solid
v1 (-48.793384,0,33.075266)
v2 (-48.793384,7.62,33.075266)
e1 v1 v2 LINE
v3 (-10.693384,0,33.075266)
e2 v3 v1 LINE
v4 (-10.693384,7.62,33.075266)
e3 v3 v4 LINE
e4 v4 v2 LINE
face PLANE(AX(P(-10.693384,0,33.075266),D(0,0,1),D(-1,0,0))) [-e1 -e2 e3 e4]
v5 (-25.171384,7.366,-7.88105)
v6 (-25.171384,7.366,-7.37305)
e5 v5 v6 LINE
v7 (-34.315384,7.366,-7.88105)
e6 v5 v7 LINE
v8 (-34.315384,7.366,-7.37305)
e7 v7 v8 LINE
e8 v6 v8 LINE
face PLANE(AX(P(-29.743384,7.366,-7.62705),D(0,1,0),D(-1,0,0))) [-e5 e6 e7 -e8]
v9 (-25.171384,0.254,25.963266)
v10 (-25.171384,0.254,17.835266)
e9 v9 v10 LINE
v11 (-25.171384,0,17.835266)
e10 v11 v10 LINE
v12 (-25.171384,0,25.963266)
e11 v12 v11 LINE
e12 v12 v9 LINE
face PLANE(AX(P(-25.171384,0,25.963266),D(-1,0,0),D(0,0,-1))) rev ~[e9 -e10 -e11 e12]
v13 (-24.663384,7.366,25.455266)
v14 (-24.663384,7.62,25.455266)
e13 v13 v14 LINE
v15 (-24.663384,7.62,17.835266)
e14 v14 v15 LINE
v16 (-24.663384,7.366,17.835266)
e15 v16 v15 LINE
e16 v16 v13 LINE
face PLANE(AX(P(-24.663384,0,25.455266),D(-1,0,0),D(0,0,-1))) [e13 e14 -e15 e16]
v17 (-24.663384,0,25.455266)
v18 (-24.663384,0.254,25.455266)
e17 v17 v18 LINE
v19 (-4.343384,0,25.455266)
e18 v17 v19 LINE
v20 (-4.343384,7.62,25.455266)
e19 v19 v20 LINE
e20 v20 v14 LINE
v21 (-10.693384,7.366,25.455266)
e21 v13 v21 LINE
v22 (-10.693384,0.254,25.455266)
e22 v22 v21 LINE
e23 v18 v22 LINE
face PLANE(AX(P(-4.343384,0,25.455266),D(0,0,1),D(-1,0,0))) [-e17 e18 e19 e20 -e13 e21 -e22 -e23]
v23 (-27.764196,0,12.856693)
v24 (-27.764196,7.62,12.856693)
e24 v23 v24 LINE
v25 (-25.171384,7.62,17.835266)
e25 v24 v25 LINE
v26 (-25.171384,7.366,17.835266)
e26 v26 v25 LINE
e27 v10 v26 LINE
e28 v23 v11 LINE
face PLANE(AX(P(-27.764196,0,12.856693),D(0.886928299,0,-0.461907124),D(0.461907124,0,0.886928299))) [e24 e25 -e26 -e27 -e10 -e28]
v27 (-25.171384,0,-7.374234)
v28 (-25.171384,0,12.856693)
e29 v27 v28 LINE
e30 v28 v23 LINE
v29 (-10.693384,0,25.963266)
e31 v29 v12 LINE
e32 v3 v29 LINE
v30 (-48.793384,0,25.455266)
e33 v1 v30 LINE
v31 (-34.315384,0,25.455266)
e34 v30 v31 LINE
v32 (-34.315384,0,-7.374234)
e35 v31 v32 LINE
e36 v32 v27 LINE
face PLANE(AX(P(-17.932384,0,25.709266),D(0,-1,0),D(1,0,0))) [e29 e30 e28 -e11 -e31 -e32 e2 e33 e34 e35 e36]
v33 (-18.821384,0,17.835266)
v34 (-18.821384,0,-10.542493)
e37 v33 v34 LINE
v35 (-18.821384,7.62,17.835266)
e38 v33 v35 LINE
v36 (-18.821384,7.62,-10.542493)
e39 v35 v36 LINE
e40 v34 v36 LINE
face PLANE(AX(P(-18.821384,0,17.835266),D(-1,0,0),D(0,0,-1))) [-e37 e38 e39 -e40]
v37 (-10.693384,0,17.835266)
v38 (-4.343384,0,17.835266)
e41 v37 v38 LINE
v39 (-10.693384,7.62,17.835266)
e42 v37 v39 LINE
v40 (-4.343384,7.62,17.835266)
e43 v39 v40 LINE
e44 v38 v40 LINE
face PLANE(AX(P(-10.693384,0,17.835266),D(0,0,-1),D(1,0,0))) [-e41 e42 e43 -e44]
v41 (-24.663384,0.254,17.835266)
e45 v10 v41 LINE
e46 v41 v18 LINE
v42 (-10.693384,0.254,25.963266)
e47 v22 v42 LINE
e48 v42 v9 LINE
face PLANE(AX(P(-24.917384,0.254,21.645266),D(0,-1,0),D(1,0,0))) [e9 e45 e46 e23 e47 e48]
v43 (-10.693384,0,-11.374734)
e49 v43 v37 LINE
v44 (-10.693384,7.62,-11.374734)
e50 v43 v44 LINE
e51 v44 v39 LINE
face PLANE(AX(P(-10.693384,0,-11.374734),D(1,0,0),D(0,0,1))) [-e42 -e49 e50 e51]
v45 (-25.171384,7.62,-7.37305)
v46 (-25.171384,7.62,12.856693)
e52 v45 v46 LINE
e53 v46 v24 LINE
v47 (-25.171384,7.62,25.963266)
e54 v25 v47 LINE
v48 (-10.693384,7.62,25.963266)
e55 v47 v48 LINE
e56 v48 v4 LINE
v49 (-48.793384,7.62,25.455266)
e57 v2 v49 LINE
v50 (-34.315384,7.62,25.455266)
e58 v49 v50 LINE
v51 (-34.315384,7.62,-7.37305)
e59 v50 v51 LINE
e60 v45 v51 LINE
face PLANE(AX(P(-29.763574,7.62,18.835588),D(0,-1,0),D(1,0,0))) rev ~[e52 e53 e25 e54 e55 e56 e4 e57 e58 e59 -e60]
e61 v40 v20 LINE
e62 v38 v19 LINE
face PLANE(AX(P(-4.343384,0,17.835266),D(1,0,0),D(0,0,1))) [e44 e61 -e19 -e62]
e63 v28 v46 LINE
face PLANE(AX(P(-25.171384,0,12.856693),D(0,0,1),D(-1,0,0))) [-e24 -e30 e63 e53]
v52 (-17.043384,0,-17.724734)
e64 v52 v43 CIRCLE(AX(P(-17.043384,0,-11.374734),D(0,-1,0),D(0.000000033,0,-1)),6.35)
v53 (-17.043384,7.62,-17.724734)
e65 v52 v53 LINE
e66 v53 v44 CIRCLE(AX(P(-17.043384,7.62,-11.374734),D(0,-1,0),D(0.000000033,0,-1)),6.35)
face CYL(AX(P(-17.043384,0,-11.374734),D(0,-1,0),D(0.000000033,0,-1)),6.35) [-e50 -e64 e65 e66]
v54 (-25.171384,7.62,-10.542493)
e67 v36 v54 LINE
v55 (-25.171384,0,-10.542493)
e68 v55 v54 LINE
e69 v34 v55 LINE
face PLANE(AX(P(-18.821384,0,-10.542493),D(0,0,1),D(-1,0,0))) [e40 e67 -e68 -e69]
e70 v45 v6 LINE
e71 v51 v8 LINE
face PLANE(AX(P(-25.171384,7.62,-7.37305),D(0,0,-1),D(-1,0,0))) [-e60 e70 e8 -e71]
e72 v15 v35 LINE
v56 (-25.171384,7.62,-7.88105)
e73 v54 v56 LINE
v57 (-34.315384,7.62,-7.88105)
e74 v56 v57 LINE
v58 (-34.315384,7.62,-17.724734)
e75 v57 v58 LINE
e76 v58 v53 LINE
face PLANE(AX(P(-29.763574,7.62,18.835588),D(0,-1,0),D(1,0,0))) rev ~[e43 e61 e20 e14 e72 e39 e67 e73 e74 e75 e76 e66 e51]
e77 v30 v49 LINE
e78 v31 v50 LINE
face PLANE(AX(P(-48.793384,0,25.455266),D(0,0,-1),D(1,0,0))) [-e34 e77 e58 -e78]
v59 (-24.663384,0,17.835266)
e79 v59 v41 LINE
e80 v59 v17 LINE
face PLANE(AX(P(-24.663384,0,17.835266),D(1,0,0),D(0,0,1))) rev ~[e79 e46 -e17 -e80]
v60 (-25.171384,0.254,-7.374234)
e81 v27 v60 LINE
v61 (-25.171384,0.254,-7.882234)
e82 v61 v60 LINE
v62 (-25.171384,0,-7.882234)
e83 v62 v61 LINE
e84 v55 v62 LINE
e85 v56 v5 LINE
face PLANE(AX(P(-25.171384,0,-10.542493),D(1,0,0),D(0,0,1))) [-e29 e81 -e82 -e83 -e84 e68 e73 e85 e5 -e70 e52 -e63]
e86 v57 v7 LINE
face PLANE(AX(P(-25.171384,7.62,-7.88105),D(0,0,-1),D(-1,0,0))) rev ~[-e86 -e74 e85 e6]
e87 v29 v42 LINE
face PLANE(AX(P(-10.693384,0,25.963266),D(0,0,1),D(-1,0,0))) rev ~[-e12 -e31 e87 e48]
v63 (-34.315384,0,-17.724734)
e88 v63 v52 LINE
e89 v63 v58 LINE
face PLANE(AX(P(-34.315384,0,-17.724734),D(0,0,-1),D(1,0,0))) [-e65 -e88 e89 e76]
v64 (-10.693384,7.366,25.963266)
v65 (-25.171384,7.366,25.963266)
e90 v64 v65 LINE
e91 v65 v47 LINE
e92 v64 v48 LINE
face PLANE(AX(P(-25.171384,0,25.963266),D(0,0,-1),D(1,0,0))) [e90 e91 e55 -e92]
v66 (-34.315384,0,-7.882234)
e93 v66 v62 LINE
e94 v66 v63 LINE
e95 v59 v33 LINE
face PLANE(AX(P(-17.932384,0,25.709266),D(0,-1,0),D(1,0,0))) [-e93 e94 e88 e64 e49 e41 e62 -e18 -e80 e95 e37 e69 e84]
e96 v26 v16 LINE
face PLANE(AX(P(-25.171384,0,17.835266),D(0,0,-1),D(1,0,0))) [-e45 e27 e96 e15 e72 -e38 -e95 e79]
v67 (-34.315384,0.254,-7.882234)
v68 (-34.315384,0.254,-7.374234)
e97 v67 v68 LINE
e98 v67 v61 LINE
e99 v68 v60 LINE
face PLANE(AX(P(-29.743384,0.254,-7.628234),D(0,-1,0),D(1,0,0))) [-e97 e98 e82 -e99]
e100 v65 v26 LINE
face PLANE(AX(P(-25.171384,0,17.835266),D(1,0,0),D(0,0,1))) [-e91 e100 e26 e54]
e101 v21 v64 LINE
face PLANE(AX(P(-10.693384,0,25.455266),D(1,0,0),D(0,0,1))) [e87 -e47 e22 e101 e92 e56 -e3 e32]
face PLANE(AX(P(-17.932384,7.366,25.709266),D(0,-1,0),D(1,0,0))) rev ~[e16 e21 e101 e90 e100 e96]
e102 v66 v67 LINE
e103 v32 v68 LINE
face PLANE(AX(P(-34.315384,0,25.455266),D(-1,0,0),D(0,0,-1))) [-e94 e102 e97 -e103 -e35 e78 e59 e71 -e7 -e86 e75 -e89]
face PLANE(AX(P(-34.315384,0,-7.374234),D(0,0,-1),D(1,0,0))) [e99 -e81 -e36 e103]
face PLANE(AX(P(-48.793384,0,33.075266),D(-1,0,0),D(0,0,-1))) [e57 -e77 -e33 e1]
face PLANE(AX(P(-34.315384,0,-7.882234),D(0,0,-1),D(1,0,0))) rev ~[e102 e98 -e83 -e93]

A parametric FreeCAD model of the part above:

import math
import FreeCAD as App
import Part
import Sketcher
from FreeCAD import Vector
Q = App.Units.Quantity


def add_polygon(sketch, points):
    """Adds a closed chain of lines whose ends are joined by coincident constraints."""
    first, n = sketch.GeometryCount, len(points)
    for a, b in zip(points, points[1:] + points[:1]):
        sketch.addGeometry(Part.LineSegment(App.Vector(*a, 0), App.Vector(*b, 0)), False)
    for i in range(n):
        sketch.addConstraint(Sketcher.Constraint("Coincident", first + i, 2, first + (i + 1) % n, 1))

doc = App.newDocument("Part")
body = doc.addObject("PartDesign::Body", "Body")

sketch1 = body.newObject("Sketcher::SketchObject", "Sketch")
sketch1.AttachmentSupport = (doc.getObject("XZ_Plane"), [""])
sketch1.MapMode = "FlatFace"
sketch1.addGeometry(Part.LineSegment(Vector(-10.7, 33.1, 0), Vector(-48.8, 33.1, 0)), False)
sketch1.addGeometry(Part.LineSegment(Vector(-48.8, 33.1, 0), Vector(-48.8, 25.5, 0)), False)
sketch1.addGeometry(Part.LineSegment(Vector(-48.8, 25.5, 0), Vector(-34.3, 25.5, 0)), False)
sketch1.addGeometry(Part.LineSegment(Vector(-34.3, 25.5, 0), Vector(-34.3, -17.7, 0)), False)
sketch1.addGeometry(Part.LineSegment(Vector(-34.3, -17.7, 0), Vector(-17, -17.7, 0)), False)
sketch1.addGeometry(Part.ArcOfCircle(Part.Circle(Vector(-17, -11.4, 0), Vector(0, 0, 1), 6.4), math.radians(-90), math.radians(0)), False)
sketch1.addGeometry(Part.LineSegment(Vector(-10.7, -11.4, 0), Vector(-10.7, 17.8, 0)), False)
sketch1.addGeometry(Part.LineSegment(Vector(-10.7, 17.8, 0), Vector(-4.3, 17.8, 0)), False)
sketch1.addGeometry(Part.LineSegment(Vector(-4.3, 17.8, 0), Vector(-4.3, 25.5, 0)), False)
sketch1.addGeometry(Part.LineSegment(Vector(-4.3, 25.5, 0), Vector(-24.7, 25.5, 0)), False)
sketch1.addGeometry(Part.LineSegment(Vector(-24.7, 25.5, 0), Vector(-24.7, 17.8, 0)), False)
sketch1.addGeometry(Part.LineSegment(Vector(-24.7, 17.8, 0), Vector(-18.8, 17.8, 0)), False)
sketch1.addGeometry(Part.LineSegment(Vector(-18.8, 17.8, 0), Vector(-18.8, -10.5, 0)), False)
sketch1.addGeometry(Part.LineSegment(Vector(-18.8, -10.5, 0), Vector(-25.2, -10.5, 0)), False)
sketch1.addGeometry(Part.LineSegment(Vector(-25.2, -10.5, 0), Vector(-25.2, 12.9, 0)), False)
sketch1.addGeometry(Part.LineSegment(Vector(-25.2, 12.9, 0), Vector(-27.8, 12.9, 0)), False)
sketch1.addGeometry(Part.LineSegment(Vector(-27.8, 12.9, 0), Vector(-25.2, 17.8, 0)), False)
sketch1.addGeometry(Part.LineSegment(Vector(-25.2, 17.8, 0), Vector(-25.2, 26, 0)), False)
sketch1.addGeometry(Part.LineSegment(Vector(-25.2, 26, 0), Vector(-10.7, 26, 0)), False)
sketch1.addGeometry(Part.LineSegment(Vector(-10.7, 26, 0), Vector(-10.7, 33.1, 0)), False)
sketch1.addConstraint(Sketcher.Constraint("Coincident", 0, 2, 1, 1))
sketch1.addConstraint(Sketcher.Constraint("Coincident", 1, 2, 2, 1))
sketch1.addConstraint(Sketcher.Constraint("Coincident", 2, 2, 3, 1))
sketch1.addConstraint(Sketcher.Constraint("Coincident", 3, 2, 4, 1))
sketch1.addConstraint(Sketcher.Constraint("Tangent", 4, 2, 5, 1))
sketch1.addConstraint(Sketcher.Constraint("Tangent", 5, 2, 6, 1))
sketch1.addConstraint(Sketcher.Constraint("Coincident", 6, 2, 7, 1))
sketch1.addConstraint(Sketcher.Constraint("Coincident", 7, 2, 8, 1))
sketch1.addConstraint(Sketcher.Constraint("Coincident", 8, 2, 9, 1))
sketch1.addConstraint(Sketcher.Constraint("Coincident", 9, 2, 10, 1))
sketch1.addConstraint(Sketcher.Constraint("Coincident", 10, 2, 11, 1))
sketch1.addConstraint(Sketcher.Constraint("Coincident", 11, 2, 12, 1))
sketch1.addConstraint(Sketcher.Constraint("Coincident", 12, 2, 13, 1))
sketch1.addConstraint(Sketcher.Constraint("Coincident", 13, 2, 14, 1))
sketch1.addConstraint(Sketcher.Constraint("Coincident", 14, 2, 15, 1))
sketch1.addConstraint(Sketcher.Constraint("Coincident", 15, 2, 16, 1))
sketch1.addConstraint(Sketcher.Constraint("Coincident", 16, 2, 17, 1))
sketch1.addConstraint(Sketcher.Constraint("Coincident", 17, 2, 18, 1))
sketch1.addConstraint(Sketcher.Constraint("Coincident", 18, 2, 19, 1))
sketch1.addConstraint(Sketcher.Constraint("Coincident", 19, 2, 0, 1))
sketch1.addConstraint(Sketcher.Constraint("Horizontal", 0))
sketch1.addConstraint(Sketcher.Constraint("Vertical", 1))
sketch1.addConstraint(Sketcher.Constraint("Horizontal", 2))
sketch1.addConstraint(Sketcher.Constraint("Vertical", 3))
sketch1.addConstraint(Sketcher.Constraint("Horizontal", 4))
sketch1.addConstraint(Sketcher.Constraint("Vertical", 6))
sketch1.addConstraint(Sketcher.Constraint("Horizontal", 7))
sketch1.addConstraint(Sketcher.Constraint("Vertical", 8))
sketch1.addConstraint(Sketcher.Constraint("Horizontal", 9))
sketch1.addConstraint(Sketcher.Constraint("Vertical", 10))
sketch1.addConstraint(Sketcher.Constraint("Horizontal", 11))
sketch1.addConstraint(Sketcher.Constraint("Vertical", 12))
sketch1.addConstraint(Sketcher.Constraint("Horizontal", 13))
sketch1.addConstraint(Sketcher.Constraint("Vertical", 14))
sketch1.addConstraint(Sketcher.Constraint("Horizontal", 15))
sketch1.addConstraint(Sketcher.Constraint("Vertical", 17))
sketch1.addConstraint(Sketcher.Constraint("Horizontal", 18))
sketch1.addConstraint(Sketcher.Constraint("Vertical", 19))
sketch1.addConstraint(Sketcher.Constraint("Horizontal", 2, 2, 8, 2))
sketch1.addConstraint(Sketcher.Constraint("Horizontal", 7, 2, 10, 2))
sketch1.addConstraint(Sketcher.Constraint("Horizontal", 11, 2, 16, 2))
sketch1.addConstraint(Sketcher.Constraint("Vertical", 14, 2, 16, 2))
sketch1.addConstraint(Sketcher.Constraint("Vertical", 6, 2, 18, 2))
sketch1.addConstraint(Sketcher.Constraint("Equal", 7, 13))
sketch1.addConstraint(Sketcher.Constraint("Equal", 2, 18))
sketch1.addConstraint(Sketcher.Constraint("Equal", 1, 8))
sketch1.addConstraint(Sketcher.Constraint("Radius", 5, Q("0.25 in")))
sketch1.addConstraint(Sketcher.Constraint("DistanceX", 0, 2, 0, 1, Q("1.5 in")))
sketch1.addConstraint(Sketcher.Constraint("DistanceX", 9, 2, 9, 1, Q("0.8 in")))
sketch1.addConstraint(Sketcher.Constraint("DistanceY", 1, 2, 1, 1, Q("0.3 in")))
sketch1.addConstraint(Sketcher.Constraint("DistanceY", 3, 2, 3, 1, Q("1.7 in")))
sketch1.addConstraint(Sketcher.Constraint("DistanceX", 2, 1, 2, 2, Q("0.57 in")))
sketch1.addConstraint(Sketcher.Constraint("DistanceX", 7, 1, 7, 2, Q("0.25 in")))
sketch1.addConstraint(Sketcher.Constraint("DistanceY", 17, 1, 17, 2, Q("0.32 in")))
sketch1.addConstraint(Sketcher.Constraint("DistanceX", 15, 2, 15, 1, Q("2.592812 mm")))
sketch1.addConstraint(Sketcher.Constraint("DistanceY", 12, 2, 12, 1, Q("28.377759 mm")))
sketch1.addConstraint(Sketcher.Constraint("DistanceY", 14, 1, 14, 2, Q("23.399186 mm")))
sketch1.addConstraint(Sketcher.Constraint("DistanceX", 5, 3, -1, 1, Q("17.043384 mm")))
sketch1.addConstraint(Sketcher.Constraint("DistanceY", 5, 3, -1, 1, Q("11.374734 mm")))
pad1 = body.newObject("PartDesign::Pad", "Pad")
pad1.Profile = sketch1
pad1.Length = Q("0.3 in")
pad1.Reversed = True

sketch2 = body.newObject("Sketcher::SketchObject", "Sketch001")
sketch2.AttachmentSupport = (doc.getObject("XZ_Plane"), [""])
sketch2.MapMode = "FlatFace"
add_polygon(sketch2, [(-10.7, 25.5), (-10.7, 26), (-25.2, 26), (-25.2, 17.8), (-24.7, 17.8), (-24.7, 25.5)])
add_polygon(sketch2, [(-34.3, -7.4), (-34.3, -7.9), (-25.2, -7.9), (-25.2, -7.4)])
sketch2.addConstraint(Sketcher.Constraint("Vertical", 0))
sketch2.addConstraint(Sketcher.Constraint("Horizontal", 1))
sketch2.addConstraint(Sketcher.Constraint("Vertical", 2))
sketch2.addConstraint(Sketcher.Constraint("Horizontal", 3))
sketch2.addConstraint(Sketcher.Constraint("Vertical", 4))
sketch2.addConstraint(Sketcher.Constraint("Horizontal", 5))
sketch2.addConstraint(Sketcher.Constraint("Vertical", 6))
sketch2.addConstraint(Sketcher.Constraint("Horizontal", 7))
sketch2.addConstraint(Sketcher.Constraint("Vertical", 8))
sketch2.addConstraint(Sketcher.Constraint("Horizontal", 9))
sketch2.addConstraint(Sketcher.Constraint("Vertical", 2, 2, 7, 2))
sketch2.addConstraint(Sketcher.Constraint("Equal", 3, 0))
sketch2.addConstraint(Sketcher.Constraint("Equal", 0, 6))
sketch2.addConstraint(Sketcher.Constraint("DistanceY", 4, 1, 4, 2, Q("0.3 in")))
sketch2.addConstraint(Sketcher.Constraint("DistanceX", 1, 2, 1, 1, Q("0.57 in")))
sketch2.addConstraint(Sketcher.Constraint("DistanceX", 3, 1, 3, 2, Q("0.02 in")))
sketch2.addConstraint(Sketcher.Constraint("DistanceX", 7, 1, 7, 2, Q("0.36 in")))
sketch2.addConstraint(Sketcher.Constraint("DistanceY", 6, 2, 4, 2, Q("1.3125 in")))
sketch2.addConstraint(Sketcher.Constraint("DistanceX", 0, 2, -1, 1, Q("10.693384 mm")))
sketch2.addConstraint(Sketcher.Constraint("DistanceY", -1, 1, 0, 2, Q("25.963266 mm")))
pad2 = body.newObject("PartDesign::Pad", "Pad001")
pad2.Profile = sketch2
pad2.Length = Q("0.29 in")
pad2.Reversed = True

sketch3 = body.newObject("Sketcher::SketchObject", "Sketch002")
sketch3.AttachmentSupport = (doc.getObject("XZ_Plane"), [""])
sketch3.MapMode = "FlatFace"
add_polygon(sketch3, [(-25.2, 17.8), (-24.7, 17.8), (-24.7, 25.5), (-10.7, 25.5), (-10.7, 26), (-25.2, 26)])
add_polygon(sketch3, [(-34.3, -7.4), (-34.3, -7.9), (-25.2, -7.9), (-25.2, -7.4)])
sketch3.addConstraint(Sketcher.Constraint("Horizontal", 0))
sketch3.addConstraint(Sketcher.Constraint("Vertical", 1))
sketch3.addConstraint(Sketcher.Constraint("Horizontal", 2))
sketch3.addConstraint(Sketcher.Constraint("Vertical", 3))
sketch3.addConstraint(Sketcher.Constraint("Horizontal", 4))
sketch3.addConstraint(Sketcher.Constraint("Vertical", 5))
sketch3.addConstraint(Sketcher.Constraint("Vertical", 6))
sketch3.addConstraint(Sketcher.Constraint("Horizontal", 7))
sketch3.addConstraint(Sketcher.Constraint("Vertical", 8))
sketch3.addConstraint(Sketcher.Constraint("Horizontal", 9))
sketch3.addConstraint(Sketcher.Constraint("Vertical", 5, 2, 7, 2))
sketch3.addConstraint(Sketcher.Constraint("Equal", 0, 3))
sketch3.addConstraint(Sketcher.Constraint("Equal", 3, 6))
sketch3.addConstraint(Sketcher.Constraint("DistanceY", 1, 1, 1, 2, Q("0.3 in")))
sketch3.addConstraint(Sketcher.Constraint("DistanceX", 0, 1, 0, 2, Q("0.02 in")))
sketch3.addConstraint(Sketcher.Constraint("DistanceX", 2, 1, 2, 2, Q("0.55 in")))
sketch3.addConstraint(Sketcher.Constraint("DistanceX", 7, 1, 7, 2, Q("0.36 in")))
sketch3.addConstraint(Sketcher.Constraint("DistanceY", 6, 2, 1, 2, Q("1.3125 in")))
sketch3.addConstraint(Sketcher.Constraint("DistanceX", 0, 2, -1, 1, Q("24.663384 mm")))
sketch3.addConstraint(Sketcher.Constraint("DistanceY", -1, 1, 0, 2, Q("17.835266 mm")))
pocket1 = body.newObject("PartDesign::Pocket", "Pocket")
pocket1.Profile = sketch3
pocket1.Length = Q("0.01 in")

sketch4 = body.newObject("Sketcher::SketchObject", "Sketch003")
sketch4.AttachmentSupport = (doc.getObject("XZ_Plane"), [""])
sketch4.MapMode = "FlatFace"
sketch4.AttachmentOffset = App.Placement(Vector(0, 0, -0.3 * 25.4), App.Rotation())
add_polygon(sketch4, [(-25.2, -7.4), (-25.2, -7.9), (-34.3, -7.9), (-34.3, -7.4)])
sketch4.addConstraint(Sketcher.Constraint("Vertical", 0))
sketch4.addConstraint(Sketcher.Constraint("Horizontal", 1))
sketch4.addConstraint(Sketcher.Constraint("Vertical", 2))
sketch4.addConstraint(Sketcher.Constraint("Horizontal", 3))
sketch4.addConstraint(Sketcher.Constraint("DistanceX", 1, 2, 1, 1, Q("0.36 in")))
sketch4.addConstraint(Sketcher.Constraint("DistanceY", 0, 2, 0, 1, Q("0.02 in")))
sketch4.addConstraint(Sketcher.Constraint("DistanceY", 0, 2, -1, 1, Q("7.88105 mm")))
sketch4.addConstraint(Sketcher.Constraint("DistanceX", 0, 2, -1, 1, Q("25.171384 mm")))
pocket2 = body.newObject("PartDesign::Pocket", "Pocket001")
pocket2.Profile = sketch4
pocket2.Length = Q("0.01 in")
pocket2.Reversed = True

doc.recompute()
